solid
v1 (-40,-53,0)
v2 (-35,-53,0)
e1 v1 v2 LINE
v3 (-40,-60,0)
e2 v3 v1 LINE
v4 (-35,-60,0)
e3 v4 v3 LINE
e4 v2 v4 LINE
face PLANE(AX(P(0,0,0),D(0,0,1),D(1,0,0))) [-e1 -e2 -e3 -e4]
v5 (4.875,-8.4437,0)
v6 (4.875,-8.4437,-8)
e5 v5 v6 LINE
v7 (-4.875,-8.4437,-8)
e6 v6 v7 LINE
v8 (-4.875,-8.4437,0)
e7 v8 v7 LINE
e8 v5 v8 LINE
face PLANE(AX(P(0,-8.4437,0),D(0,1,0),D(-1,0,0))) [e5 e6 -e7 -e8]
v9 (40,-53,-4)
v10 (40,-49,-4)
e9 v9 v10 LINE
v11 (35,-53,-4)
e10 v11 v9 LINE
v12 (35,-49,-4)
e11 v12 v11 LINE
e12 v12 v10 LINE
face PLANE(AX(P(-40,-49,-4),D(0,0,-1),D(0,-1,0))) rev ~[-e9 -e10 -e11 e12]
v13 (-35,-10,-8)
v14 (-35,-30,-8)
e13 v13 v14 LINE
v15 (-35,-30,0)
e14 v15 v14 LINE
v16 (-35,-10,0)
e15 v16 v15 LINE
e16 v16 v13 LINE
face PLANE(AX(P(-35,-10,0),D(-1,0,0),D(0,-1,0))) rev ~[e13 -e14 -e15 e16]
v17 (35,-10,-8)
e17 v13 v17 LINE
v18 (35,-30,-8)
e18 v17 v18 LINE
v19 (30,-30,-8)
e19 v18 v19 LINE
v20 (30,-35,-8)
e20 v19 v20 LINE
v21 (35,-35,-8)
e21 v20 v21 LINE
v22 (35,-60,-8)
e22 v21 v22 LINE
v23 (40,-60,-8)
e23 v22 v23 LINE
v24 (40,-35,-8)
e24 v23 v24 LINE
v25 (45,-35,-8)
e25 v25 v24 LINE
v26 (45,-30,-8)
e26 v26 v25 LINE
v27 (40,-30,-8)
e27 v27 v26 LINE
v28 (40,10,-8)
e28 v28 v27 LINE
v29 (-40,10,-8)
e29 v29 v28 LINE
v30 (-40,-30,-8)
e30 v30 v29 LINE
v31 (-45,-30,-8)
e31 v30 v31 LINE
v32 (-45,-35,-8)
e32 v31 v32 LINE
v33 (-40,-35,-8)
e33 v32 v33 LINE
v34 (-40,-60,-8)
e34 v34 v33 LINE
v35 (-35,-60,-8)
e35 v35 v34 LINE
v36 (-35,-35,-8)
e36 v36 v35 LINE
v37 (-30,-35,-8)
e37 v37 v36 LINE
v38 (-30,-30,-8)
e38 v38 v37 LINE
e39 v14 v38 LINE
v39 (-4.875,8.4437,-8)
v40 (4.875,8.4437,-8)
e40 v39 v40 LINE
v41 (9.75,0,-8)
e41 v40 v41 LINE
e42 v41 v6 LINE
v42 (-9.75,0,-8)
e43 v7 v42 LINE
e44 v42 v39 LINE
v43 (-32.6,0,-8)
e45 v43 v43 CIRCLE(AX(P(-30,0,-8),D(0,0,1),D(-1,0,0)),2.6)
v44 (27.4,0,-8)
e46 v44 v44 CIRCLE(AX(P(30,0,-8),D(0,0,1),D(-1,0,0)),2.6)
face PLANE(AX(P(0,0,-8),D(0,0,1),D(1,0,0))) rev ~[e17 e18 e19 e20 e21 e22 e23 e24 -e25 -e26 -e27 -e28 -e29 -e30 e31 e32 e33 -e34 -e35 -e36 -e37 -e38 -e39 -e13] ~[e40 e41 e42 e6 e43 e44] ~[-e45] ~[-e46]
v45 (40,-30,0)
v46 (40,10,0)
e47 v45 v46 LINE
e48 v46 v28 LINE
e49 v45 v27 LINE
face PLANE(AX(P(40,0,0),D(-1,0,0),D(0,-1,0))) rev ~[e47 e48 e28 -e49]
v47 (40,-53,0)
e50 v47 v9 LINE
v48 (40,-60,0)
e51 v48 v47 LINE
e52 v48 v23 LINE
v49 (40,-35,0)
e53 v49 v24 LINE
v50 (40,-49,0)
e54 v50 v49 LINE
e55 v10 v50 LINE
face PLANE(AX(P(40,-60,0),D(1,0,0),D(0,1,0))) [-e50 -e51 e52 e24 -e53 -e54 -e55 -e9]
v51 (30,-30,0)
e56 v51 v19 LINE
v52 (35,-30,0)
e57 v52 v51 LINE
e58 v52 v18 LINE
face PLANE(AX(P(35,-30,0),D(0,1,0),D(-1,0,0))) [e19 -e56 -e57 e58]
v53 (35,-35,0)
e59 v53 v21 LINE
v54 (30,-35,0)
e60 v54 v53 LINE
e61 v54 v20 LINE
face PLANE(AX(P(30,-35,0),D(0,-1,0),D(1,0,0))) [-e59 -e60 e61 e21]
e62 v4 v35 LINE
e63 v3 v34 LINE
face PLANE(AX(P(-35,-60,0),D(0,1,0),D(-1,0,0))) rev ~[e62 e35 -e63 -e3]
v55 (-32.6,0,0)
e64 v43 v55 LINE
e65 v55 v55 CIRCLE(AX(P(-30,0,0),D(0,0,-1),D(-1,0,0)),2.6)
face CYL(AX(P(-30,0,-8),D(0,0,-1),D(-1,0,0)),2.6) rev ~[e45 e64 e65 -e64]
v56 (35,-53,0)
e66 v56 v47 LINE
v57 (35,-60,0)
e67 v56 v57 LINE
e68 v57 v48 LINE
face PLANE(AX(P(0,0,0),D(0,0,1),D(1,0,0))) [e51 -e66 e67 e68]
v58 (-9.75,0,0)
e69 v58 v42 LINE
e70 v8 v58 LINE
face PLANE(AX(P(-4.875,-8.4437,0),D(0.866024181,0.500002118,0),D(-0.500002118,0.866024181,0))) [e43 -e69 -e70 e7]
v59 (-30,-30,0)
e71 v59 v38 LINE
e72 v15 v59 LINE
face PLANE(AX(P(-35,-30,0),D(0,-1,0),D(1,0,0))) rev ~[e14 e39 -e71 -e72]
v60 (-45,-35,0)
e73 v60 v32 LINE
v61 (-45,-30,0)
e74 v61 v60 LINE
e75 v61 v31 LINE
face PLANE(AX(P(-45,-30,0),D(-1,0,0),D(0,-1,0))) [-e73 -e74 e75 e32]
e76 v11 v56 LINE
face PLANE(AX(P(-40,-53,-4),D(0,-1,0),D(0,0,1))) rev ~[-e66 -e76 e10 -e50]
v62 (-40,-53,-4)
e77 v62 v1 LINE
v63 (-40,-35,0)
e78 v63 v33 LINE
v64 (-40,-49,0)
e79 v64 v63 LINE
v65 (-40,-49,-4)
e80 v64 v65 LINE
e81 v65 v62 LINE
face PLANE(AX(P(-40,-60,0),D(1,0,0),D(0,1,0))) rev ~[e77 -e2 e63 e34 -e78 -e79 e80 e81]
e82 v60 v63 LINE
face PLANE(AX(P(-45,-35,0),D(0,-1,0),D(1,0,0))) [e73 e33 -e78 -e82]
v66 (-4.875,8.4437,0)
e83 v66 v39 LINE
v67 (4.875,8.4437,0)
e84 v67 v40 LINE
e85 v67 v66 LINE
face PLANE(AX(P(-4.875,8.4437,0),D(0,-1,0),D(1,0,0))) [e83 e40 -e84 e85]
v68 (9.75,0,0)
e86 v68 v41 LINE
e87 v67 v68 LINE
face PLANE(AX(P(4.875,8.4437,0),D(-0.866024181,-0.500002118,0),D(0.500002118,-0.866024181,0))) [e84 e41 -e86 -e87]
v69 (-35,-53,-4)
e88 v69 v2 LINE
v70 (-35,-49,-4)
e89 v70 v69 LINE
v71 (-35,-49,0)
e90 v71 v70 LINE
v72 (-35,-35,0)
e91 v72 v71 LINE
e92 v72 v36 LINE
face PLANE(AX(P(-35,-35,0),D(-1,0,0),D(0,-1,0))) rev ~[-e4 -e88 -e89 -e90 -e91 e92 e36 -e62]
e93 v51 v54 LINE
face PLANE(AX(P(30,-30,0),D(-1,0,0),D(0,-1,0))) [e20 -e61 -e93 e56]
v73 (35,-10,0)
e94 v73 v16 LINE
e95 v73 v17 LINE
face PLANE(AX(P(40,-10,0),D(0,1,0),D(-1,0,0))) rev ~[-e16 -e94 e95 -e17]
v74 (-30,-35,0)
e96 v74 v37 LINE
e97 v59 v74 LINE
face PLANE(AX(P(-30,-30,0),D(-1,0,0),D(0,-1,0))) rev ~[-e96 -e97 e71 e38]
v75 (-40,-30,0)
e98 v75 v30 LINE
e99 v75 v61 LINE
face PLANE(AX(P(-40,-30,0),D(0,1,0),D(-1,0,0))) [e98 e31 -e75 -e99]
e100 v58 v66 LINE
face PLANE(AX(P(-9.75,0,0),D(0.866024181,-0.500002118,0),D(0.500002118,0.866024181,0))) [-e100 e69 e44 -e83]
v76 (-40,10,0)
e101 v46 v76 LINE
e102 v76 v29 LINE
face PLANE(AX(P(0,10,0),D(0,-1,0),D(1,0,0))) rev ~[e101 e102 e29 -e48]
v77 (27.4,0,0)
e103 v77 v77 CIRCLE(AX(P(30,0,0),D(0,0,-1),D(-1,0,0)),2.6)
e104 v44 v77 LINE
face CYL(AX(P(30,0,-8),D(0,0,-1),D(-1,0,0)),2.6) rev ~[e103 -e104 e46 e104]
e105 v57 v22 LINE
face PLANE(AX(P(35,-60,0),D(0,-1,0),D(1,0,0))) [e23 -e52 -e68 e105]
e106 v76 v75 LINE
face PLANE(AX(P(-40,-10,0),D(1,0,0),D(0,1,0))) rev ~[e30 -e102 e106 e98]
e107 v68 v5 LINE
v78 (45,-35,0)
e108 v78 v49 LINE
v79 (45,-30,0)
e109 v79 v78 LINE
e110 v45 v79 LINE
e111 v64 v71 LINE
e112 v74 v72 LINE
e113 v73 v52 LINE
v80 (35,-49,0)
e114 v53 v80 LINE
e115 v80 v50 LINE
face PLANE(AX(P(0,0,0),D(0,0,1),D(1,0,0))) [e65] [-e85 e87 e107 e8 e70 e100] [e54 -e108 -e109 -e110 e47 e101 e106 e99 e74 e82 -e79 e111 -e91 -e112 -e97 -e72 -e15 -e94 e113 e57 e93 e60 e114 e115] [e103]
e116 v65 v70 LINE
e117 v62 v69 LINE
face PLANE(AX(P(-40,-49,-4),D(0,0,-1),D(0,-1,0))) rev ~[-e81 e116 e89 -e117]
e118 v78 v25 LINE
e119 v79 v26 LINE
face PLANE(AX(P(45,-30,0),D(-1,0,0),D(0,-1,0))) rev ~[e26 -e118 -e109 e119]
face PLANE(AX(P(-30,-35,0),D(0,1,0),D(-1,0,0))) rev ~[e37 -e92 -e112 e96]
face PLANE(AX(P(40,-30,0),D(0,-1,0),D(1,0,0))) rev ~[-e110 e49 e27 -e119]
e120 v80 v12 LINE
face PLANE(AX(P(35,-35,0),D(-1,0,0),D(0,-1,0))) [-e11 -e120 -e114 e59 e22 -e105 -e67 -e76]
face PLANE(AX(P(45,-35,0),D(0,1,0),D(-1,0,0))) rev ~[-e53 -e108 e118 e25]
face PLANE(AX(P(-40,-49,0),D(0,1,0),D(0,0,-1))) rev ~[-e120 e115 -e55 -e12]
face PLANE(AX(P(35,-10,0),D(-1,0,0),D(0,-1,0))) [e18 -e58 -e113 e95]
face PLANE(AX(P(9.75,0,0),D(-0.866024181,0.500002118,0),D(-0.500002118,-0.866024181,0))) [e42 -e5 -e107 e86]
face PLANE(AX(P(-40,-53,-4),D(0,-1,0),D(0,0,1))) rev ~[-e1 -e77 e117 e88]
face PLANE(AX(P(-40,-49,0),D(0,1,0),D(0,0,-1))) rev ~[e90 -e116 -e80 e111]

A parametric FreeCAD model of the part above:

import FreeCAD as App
import Part
import Sketcher
Q = App.Units.Quantity


def add_polygon(sketch, points):
    """Adds a closed chain of lines whose ends are joined by coincident constraints."""
    first, n = sketch.GeometryCount, len(points)
    for a, b in zip(points, points[1:] + points[:1]):
        sketch.addGeometry(Part.LineSegment(App.Vector(*a, 0), App.Vector(*b, 0)), False)
    for i in range(n):
        sketch.addConstraint(Sketcher.Constraint("Coincident", first + i, 2, first + (i + 1) % n, 1))

doc = App.newDocument("Part")
body = doc.addObject("PartDesign::Body", "Body")

# Sketch on XY plane
sketch1 = doc.addObject("Sketcher::SketchObject", "Sketch")
body.addObject(sketch1)
sketch1.AttachmentSupport = (doc.XY_Plane, [""])
sketch1.MapMode = "FlatFace"
add_polygon(sketch1, [(40, -10), (40, 10), (-40, 10), (-40, -10)])  # lines 0-3
sketch1.addConstraint([
    Sketcher.Constraint("Vertical", 0),
    Sketcher.Constraint("Horizontal", 1),
    Sketcher.Constraint("Vertical", 2),
    Sketcher.Constraint("Horizontal", 3),
    Sketcher.Constraint("Symmetric", 0, 2, 2, 2, -1, 1),
    Sketcher.Constraint("DistanceX", 1, 2, 1, 1, 80.0),
    Sketcher.Constraint("DistanceY", 0, 1, 0, 2, 20.0),
])
pad1 = doc.addObject("PartDesign::Pad", "Pad")
body.addObject(pad1)
pad1.Profile = sketch1
pad1.Length = 8
pad1.Reversed = True

# Sketch on XY plane
sketch2 = doc.addObject("Sketcher::SketchObject", "Sketch001")
body.addObject(sketch2)
sketch2.AttachmentSupport = (doc.XY_Plane, [""])
sketch2.MapMode = "FlatFace"
add_polygon(sketch2, [(-5, -8), (5, -8), (10, 0), (5, 8), (-5, 8), (-10, 0)])  # lines 0-5
sketch2.addConstraint([
    Sketcher.Constraint("Horizontal", 0),
    Sketcher.Constraint("Horizontal", 3),
    Sketcher.Constraint("Symmetric", 0, 2, 3, 2, -1, 1),
    Sketcher.Constraint("Symmetric", 1, 2, 4, 2, -1, 1),
    Sketcher.Constraint("PointOnObject", 1, 2, -1),
    Sketcher.Constraint("Parallel", 2, 5),
    Sketcher.Constraint("Vertical", 0, 2, 2, 2),
    Sketcher.Constraint("DistanceX", 4, 2, 1, 2, 19.5),
    Sketcher.Constraint("Angle", 1, Q("59.9999 deg")),
    Sketcher.Constraint("DistanceX", 0, 1, 0, 2, 9.75),
])
pocket1 = doc.addObject("PartDesign::Pocket", "Pocket")
body.addObject(pocket1)
pocket1.Profile = sketch2
pocket1.Length = 10

# Sketch on XY plane
sketch3 = doc.addObject("Sketcher::SketchObject", "Sketch002")
body.addObject(sketch3)
sketch3.AttachmentSupport = (doc.XY_Plane, [""])
sketch3.MapMode = "FlatFace"
sketch3.AttachmentOffset = App.Placement(App.Vector(0, 0, -8), App.Rotation())
sketch3.addGeometry([
    Part.Circle(App.Vector(30, 0, 0), App.Vector(0, 0, 1), 2.6),
    Part.Circle(App.Vector(-30, 0, 0), App.Vector(0, 0, 1), 2.6),
], False)
sketch3.addConstraint([
    Sketcher.Constraint("Equal", 0, 1),
    Sketcher.Constraint("Symmetric", 0, 3, 1, 3, -1, 1),
    Sketcher.Constraint("PointOnObject", 0, 3, -1),
    Sketcher.Constraint("Diameter", 0, 5.2),
    Sketcher.Constraint("DistanceX", 1, 3, 0, 3, 60.0),
])
pocket2 = doc.addObject("PartDesign::Pocket", "Pocket001")
body.addObject(pocket2)
pocket2.Profile = sketch3
pocket2.Type = "ThroughAll"
pocket2.Reversed = True

# Sketch on XY plane
sketch4 = doc.addObject("Sketcher::SketchObject", "Sketch003")
body.addObject(sketch4)
sketch4.AttachmentSupport = (doc.XY_Plane, [""])
sketch4.MapMode = "FlatFace"
add_polygon(sketch4, [(40, -30), (40, -10), (35, -10), (35, -30), (30, -30), (30, -35), (35, -35), (35, -60), (40, -60), (40, -35), (45, -35), (45, -30)])  # lines 0-11
add_polygon(sketch4, [(-35, -30), (-35, -10), (-40, -10), (-40, -30), (-45, -30), (-45, -35), (-40, -35), (-40, -60), (-35, -60), (-35, -35), (-30, -35), (-30, -30)])  # lines 12-23
sketch4.addConstraint([
    Sketcher.Constraint("Vertical", 0),
    Sketcher.Constraint("Horizontal", 1),
    Sketcher.Constraint("Vertical", 2),
    Sketcher.Constraint("Horizontal", 3),
    Sketcher.Constraint("Vertical", 4),
    Sketcher.Constraint("Horizontal", 5),
    Sketcher.Constraint("Vertical", 6),
    Sketcher.Constraint("Horizontal", 7),
    Sketcher.Constraint("Vertical", 8),
    Sketcher.Constraint("Horizontal", 9),
    Sketcher.Constraint("Vertical", 10),
    Sketcher.Constraint("Horizontal", 11),
    Sketcher.Constraint("Vertical", 12),
    Sketcher.Constraint("Horizontal", 13),
    Sketcher.Constraint("Vertical", 14),
    Sketcher.Constraint("Horizontal", 15),
    Sketcher.Constraint("Vertical", 16),
    Sketcher.Constraint("Horizontal", 17),
    Sketcher.Constraint("Vertical", 18),
    Sketcher.Constraint("Horizontal", 19),
    Sketcher.Constraint("Vertical", 20),
    Sketcher.Constraint("Horizontal", 21),
    Sketcher.Constraint("Vertical", 22),
    Sketcher.Constraint("Horizontal", 23),
    Sketcher.Constraint("Symmetric", 1, 2, 12, 2, -2),
    Sketcher.Constraint("Symmetric", 11, 2, 14, 2, -2),
    Sketcher.Constraint("Symmetric", 9, 2, 16, 2, -2),
    Sketcher.Constraint("Symmetric", 7, 2, 18, 2, -2),
    Sketcher.Constraint("Symmetric", 5, 2, 20, 2, -2),
    Sketcher.Constraint("Symmetric", 3, 2, 22, 2, -2),
    Sketcher.Constraint("Horizontal", 5, 2, 8, 2),
    Sketcher.Constraint("Horizontal", 3, 2, 10, 2),
    Sketcher.Constraint("Vertical", 2, 2, 5, 2),
    Sketcher.Constraint("Vertical", 0, 2, 7, 2),
    Sketcher.Constraint("Equal", 1, 3),
    Sketcher.Constraint("Equal", 7, 9),
    Sketcher.Constraint("Equal", 23, 4),
    Sketcher.Constraint("DistanceX", 1, 2, 1, 1, 5.0),
    Sketcher.Constraint("DistanceY", 0, 1, 0, 2, 20.0),
    Sketcher.Constraint("DistanceY", 6, 2, 1, 2, 50.0),
    Sketcher.Constraint("DistanceX", -1, 1, 0, 2, 40.0),
    Sketcher.Constraint("DistanceY", 0, 2, -1, 1, 10.0),
])
pad2 = doc.addObject("PartDesign::Pad", "Pad001")
body.addObject(pad2)
pad2.Profile = sketch4
pad2.Length = 8
pad2.Reversed = True

# Sketch on YZ plane
sketch5 = doc.addObject("Sketcher::SketchObject", "Sketch004")
body.addObject(sketch5)
sketch5.AttachmentSupport = (doc.YZ_Plane, [""])
sketch5.MapMode = "FlatFace"
sketch5.AttachmentOffset = App.Placement(App.Vector(0, 0, -40), App.Rotation())
add_polygon(sketch5, [(-53, 0), (-49, 0), (-49, -4), (-53, -4)])  # lines 0-3
sketch5.addConstraint([
    Sketcher.Constraint("Horizontal", 0),
    Sketcher.Constraint("Vertical", 1),
    Sketcher.Constraint("Horizontal", 2),
    Sketcher.Constraint("Vertical", 3),
    Sketcher.Constraint("PointOnObject", 0, 2, -1),
    Sketcher.Constraint("Equal", 2, 1),
    Sketcher.Constraint("DistanceX", 0, 1, 0, 2, 4.0),
    Sketcher.Constraint("DistanceX", 0, 2, -1, 1, 49.0),
])
pocket3 = doc.addObject("PartDesign::Pocket", "Pocket002")
body.addObject(pocket3)
pocket3.Profile = sketch5
pocket3.Type = "ThroughAll"
pocket3.Reversed = True

doc.recompute()
